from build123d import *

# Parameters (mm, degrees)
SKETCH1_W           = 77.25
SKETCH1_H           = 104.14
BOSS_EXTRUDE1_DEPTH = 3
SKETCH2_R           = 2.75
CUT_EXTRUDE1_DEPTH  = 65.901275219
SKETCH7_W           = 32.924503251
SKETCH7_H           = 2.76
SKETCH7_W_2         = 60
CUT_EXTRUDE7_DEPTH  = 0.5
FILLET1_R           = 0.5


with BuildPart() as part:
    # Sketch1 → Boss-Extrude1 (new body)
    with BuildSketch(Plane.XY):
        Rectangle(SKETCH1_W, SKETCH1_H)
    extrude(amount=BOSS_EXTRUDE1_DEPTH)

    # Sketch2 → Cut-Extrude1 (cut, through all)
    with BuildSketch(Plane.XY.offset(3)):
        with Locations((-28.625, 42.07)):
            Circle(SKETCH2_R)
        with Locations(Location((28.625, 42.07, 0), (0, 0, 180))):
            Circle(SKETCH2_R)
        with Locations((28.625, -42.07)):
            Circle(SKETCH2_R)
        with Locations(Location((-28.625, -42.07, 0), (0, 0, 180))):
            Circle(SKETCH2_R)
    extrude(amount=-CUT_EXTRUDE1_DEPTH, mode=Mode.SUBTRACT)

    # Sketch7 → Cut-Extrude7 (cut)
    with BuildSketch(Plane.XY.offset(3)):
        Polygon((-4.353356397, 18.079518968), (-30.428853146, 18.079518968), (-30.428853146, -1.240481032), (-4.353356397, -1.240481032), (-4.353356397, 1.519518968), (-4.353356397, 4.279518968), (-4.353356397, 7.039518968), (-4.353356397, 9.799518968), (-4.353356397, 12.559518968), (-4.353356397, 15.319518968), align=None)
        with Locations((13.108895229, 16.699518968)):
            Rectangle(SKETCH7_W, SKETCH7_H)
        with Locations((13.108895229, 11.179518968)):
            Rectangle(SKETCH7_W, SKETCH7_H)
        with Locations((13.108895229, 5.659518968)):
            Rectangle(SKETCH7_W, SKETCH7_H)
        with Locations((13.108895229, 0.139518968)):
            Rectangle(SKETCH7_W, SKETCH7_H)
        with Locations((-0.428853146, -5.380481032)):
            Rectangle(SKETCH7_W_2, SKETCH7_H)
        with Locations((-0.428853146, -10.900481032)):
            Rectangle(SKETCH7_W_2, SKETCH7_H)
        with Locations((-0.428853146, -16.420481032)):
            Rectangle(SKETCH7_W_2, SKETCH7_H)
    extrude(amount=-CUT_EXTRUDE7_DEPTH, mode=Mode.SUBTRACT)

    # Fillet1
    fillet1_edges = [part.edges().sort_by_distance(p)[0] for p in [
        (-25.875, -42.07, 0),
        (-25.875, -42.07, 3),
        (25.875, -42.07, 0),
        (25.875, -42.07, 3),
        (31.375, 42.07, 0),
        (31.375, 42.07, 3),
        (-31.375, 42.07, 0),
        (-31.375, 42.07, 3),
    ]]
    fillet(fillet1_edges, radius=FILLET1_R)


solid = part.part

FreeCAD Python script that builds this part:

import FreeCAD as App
import Part
import Sketcher

V = App.Vector
Q = App.Units.Quantity


def edges_at(feature, points):
    """Names of the edges that pass closest to the given points."""
    edges = feature.Shape.Edges
    near = lambda p: min(range(len(edges)), key=lambda i: edges[i].distToShape(Part.Vertex(*p))[0])
    return sorted({f"Edge{near(p) + 1}" for p in points})

doc = App.newDocument("Part")
params = doc.addObject("Spreadsheet::Sheet", "Params")
for row, (alias, value) in enumerate([
    ("sketch1_width", "77.25 mm"),
    ("sketch1_height", "104.14 mm"),
    ("pad1_length", "3 mm"),
    ("sketch2_diameter", "5.5 mm"),
    ("sketch3_width", "60 mm"),
    ("sketch3_height", "19.32 mm"),
    ("sketch3_height2", "2.76 mm"),
    ("pocket2_length", "0.5 mm"),
    ("fillet_radius", "0.5 mm"),
], start=1):
    params.set(f"A{row}", alias)
    params.set(f"B{row}", "=" + value)
    params.setAlias(f"B{row}", alias)

body = doc.addObject("PartDesign::Body", "Body")

sketch1 = body.newObject("Sketcher::SketchObject", "Sketch")
sketch1.AttachmentSupport = (doc.getObject("XY_Plane"), [""])
sketch1.MapMode = "FlatFace"
sketch1.addGeometry(Part.LineSegment(V(-39, 52, 0), V(-39, -52, 0)), False)
sketch1.addGeometry(Part.LineSegment(V(-39, -52, 0), V(39, -52, 0)), False)
sketch1.addGeometry(Part.LineSegment(V(39, -52, 0), V(39, 52, 0)), False)
sketch1.addGeometry(Part.LineSegment(V(39, 52, 0), V(-39, 52, 0)), False)
sketch1.addConstraint(Sketcher.Constraint("Coincident", 0, 2, 1, 1))
sketch1.addConstraint(Sketcher.Constraint("Coincident", 1, 2, 2, 1))
sketch1.addConstraint(Sketcher.Constraint("Coincident", 2, 2, 3, 1))
sketch1.addConstraint(Sketcher.Constraint("Coincident", 3, 2, 0, 1))
sketch1.addConstraint(Sketcher.Constraint("Vertical", 0))
sketch1.addConstraint(Sketcher.Constraint("Horizontal", 1))
sketch1.addConstraint(Sketcher.Constraint("Vertical", 2))
sketch1.addConstraint(Sketcher.Constraint("Horizontal", 3))
sketch1.addConstraint(Sketcher.Constraint("Symmetric", 0, 2, 2, 2, -1, 1))
sketch1.addConstraint(Sketcher.Constraint("DistanceX", 1, 1, 1, 2, Q("77.25 mm")))
sketch1.addConstraint(Sketcher.Constraint("DistanceY", 0, 2, 0, 1, Q("104.14 mm")))
sketch1.setExpression("Constraints[9]", "Params.sketch1_width")
sketch1.setExpression("Constraints[10]", "Params.sketch1_height")
pad1 = body.newObject("PartDesign::Pad", "Pad")
pad1.Profile = sketch1
pad1.setExpression("Length", "Params.pad1_length")

sketch2 = body.newObject("Sketcher::SketchObject", "Sketch001")
sketch2.AttachmentSupport = (doc.getObject("XY_Plane"), [""])
sketch2.MapMode = "FlatFace"
sketch2.AttachmentOffset = App.Placement(V(0, 0, 3), App.Rotation())
sketch2.addGeometry(Part.Circle(V(-28.6, 42.1, 0), V(0, 0, 1), 2.8), False)
sketch2.addGeometry(Part.Circle(V(28.6, 42.1, 0), V(0, 0, 1), 2.8), False)
sketch2.addGeometry(Part.Circle(V(28.6, -42.1, 0), V(0, 0, 1), 2.8), False)
sketch2.addGeometry(Part.Circle(V(-28.6, -42.1, 0), V(0, 0, 1), 2.8), False)
sketch2.addConstraint(Sketcher.Constraint("Equal", 0, 1))
sketch2.addConstraint(Sketcher.Constraint("Equal", 1, 2))
sketch2.addConstraint(Sketcher.Constraint("Equal", 2, 3))
sketch2.addConstraint(Sketcher.Constraint("Symmetric", 0, 3, 2, 3, -1, 1))
sketch2.addConstraint(Sketcher.Constraint("Symmetric", 1, 3, 3, 3, -1, 1))
sketch2.addConstraint(Sketcher.Constraint("Symmetric", 0, 3, 1, 3, -2))
sketch2.addConstraint(Sketcher.Constraint("Diameter", 0, Q("5.5 mm")))
sketch2.addConstraint(Sketcher.Constraint("DistanceY", -1, 1, 0, 3, Q("42.07 mm")))
sketch2.addConstraint(Sketcher.Constraint("DistanceX", 0, 3, 1, 3, Q("57.25 mm")))
sketch2.setExpression("Constraints[6]", "Params.sketch2_diameter")
pocket1 = body.newObject("PartDesign::Pocket", "Pocket")
pocket1.Profile = sketch2
pocket1.Type = "ThroughAll"

sketch3 = body.newObject("Sketcher::SketchObject", "Sketch002")
sketch3.AttachmentSupport = (doc.getObject("XY_Plane"), [""])
sketch3.MapMode = "FlatFace"
sketch3.AttachmentOffset = App.Placement(V(0, 0, 3), App.Rotation())
sketch3.addGeometry(Part.LineSegment(V(-4.4, 18.1, 0), V(-30.4, 18.1, 0)), False)
sketch3.addGeometry(Part.LineSegment(V(-30.4, 18.1, 0), V(-30.4, -1.2, 0)), False)
sketch3.addGeometry(Part.LineSegment(V(-30.4, -1.2, 0), V(-4.4, -1.2, 0)), False)
sketch3.addGeometry(Part.LineSegment(V(-4.4, -1.2, 0), V(-4.4, 18.1, 0)), False)
sketch3.addGeometry(Part.LineSegment(V(-3.4, 18.1, 0), V(-3.4, 15.3, 0)), False)
sketch3.addGeometry(Part.LineSegment(V(-3.4, 15.3, 0), V(29.6, 15.3, 0)), False)
sketch3.addGeometry(Part.LineSegment(V(29.6, 15.3, 0), V(29.6, 18.1, 0)), False)
sketch3.addGeometry(Part.LineSegment(V(29.6, 18.1, 0), V(-3.4, 18.1, 0)), False)
sketch3.addGeometry(Part.LineSegment(V(-3.4, 12.6, 0), V(-3.4, 9.8, 0)), False)
sketch3.addGeometry(Part.LineSegment(V(-3.4, 9.8, 0), V(29.6, 9.8, 0)), False)
sketch3.addGeometry(Part.LineSegment(V(29.6, 9.8, 0), V(29.6, 12.6, 0)), False)
sketch3.addGeometry(Part.LineSegment(V(29.6, 12.6, 0), V(-3.4, 12.6, 0)), False)
sketch3.addGeometry(Part.LineSegment(V(-3.4, 7, 0), V(-3.4, 4.3, 0)), False)
sketch3.addGeometry(Part.LineSegment(V(-3.4, 4.3, 0), V(29.6, 4.3, 0)), False)
sketch3.addGeometry(Part.LineSegment(V(29.6, 4.3, 0), V(29.6, 7, 0)), False)
sketch3.addGeometry(Part.LineSegment(V(29.6, 7, 0), V(-3.4, 7, 0)), False)
sketch3.addGeometry(Part.LineSegment(V(-3.4, 1.5, 0), V(-3.4, -1.2, 0)), False)
sketch3.addGeometry(Part.LineSegment(V(-3.4, -1.2, 0), V(29.6, -1.2, 0)), False)
sketch3.addGeometry(Part.LineSegment(V(29.6, -1.2, 0), V(29.6, 1.5, 0)), False)
sketch3.addGeometry(Part.LineSegment(V(29.6, 1.5, 0), V(-3.4, 1.5, 0)), False)
sketch3.addGeometry(Part.LineSegment(V(-30.4, -4, 0), V(-30.4, -6.8, 0)), False)
sketch3.addGeometry(Part.LineSegment(V(-30.4, -6.8, 0), V(29.6, -6.8, 0)), False)
sketch3.addGeometry(Part.LineSegment(V(29.6, -6.8, 0), V(29.6, -4, 0)), False)
sketch3.addGeometry(Part.LineSegment(V(29.6, -4, 0), V(-30.4, -4, 0)), False)
sketch3.addGeometry(Part.LineSegment(V(-30.4, -9.5, 0), V(-30.4, -12.3, 0)), False)
sketch3.addGeometry(Part.LineSegment(V(-30.4, -12.3, 0), V(29.6, -12.3, 0)), False)
sketch3.addGeometry(Part.LineSegment(V(29.6, -12.3, 0), V(29.6, -9.5, 0)), False)
sketch3.addGeometry(Part.LineSegment(V(29.6, -9.5, 0), V(-30.4, -9.5, 0)), False)
sketch3.addGeometry(Part.LineSegment(V(-30.4, -15, 0), V(-30.4, -17.8, 0)), False)
sketch3.addGeometry(Part.LineSegment(V(-30.4, -17.8, 0), V(29.6, -17.8, 0)), False)
sketch3.addGeometry(Part.LineSegment(V(29.6, -17.8, 0), V(29.6, -15, 0)), False)
sketch3.addGeometry(Part.LineSegment(V(29.6, -15, 0), V(-30.4, -15, 0)), False)
sketch3.addConstraint(Sketcher.Constraint("Coincident", 0, 2, 1, 1))
sketch3.addConstraint(Sketcher.Constraint("Coincident", 1, 2, 2, 1))
sketch3.addConstraint(Sketcher.Constraint("Coincident", 2, 2, 3, 1))
sketch3.addConstraint(Sketcher.Constraint("Coincident", 3, 2, 0, 1))
sketch3.addConstraint(Sketcher.Constraint("Coincident", 4, 2, 5, 1))
sketch3.addConstraint(Sketcher.Constraint("Coincident", 5, 2, 6, 1))
sketch3.addConstraint(Sketcher.Constraint("Coincident", 6, 2, 7, 1))
sketch3.addConstraint(Sketcher.Constraint("Coincident", 7, 2, 4, 1))
sketch3.addConstraint(Sketcher.Constraint("Coincident", 8, 2, 9, 1))
sketch3.addConstraint(Sketcher.Constraint("Coincident", 9, 2, 10, 1))
sketch3.addConstraint(Sketcher.Constraint("Coincident", 10, 2, 11, 1))
sketch3.addConstraint(Sketcher.Constraint("Coincident", 11, 2, 8, 1))
sketch3.addConstraint(Sketcher.Constraint("Coincident", 12, 2, 13, 1))
sketch3.addConstraint(Sketcher.Constraint("Coincident", 13, 2, 14, 1))
sketch3.addConstraint(Sketcher.Constraint("Coincident", 14, 2, 15, 1))
sketch3.addConstraint(Sketcher.Constraint("Coincident", 15, 2, 12, 1))
sketch3.addConstraint(Sketcher.Constraint("Coincident", 16, 2, 17, 1))
sketch3.addConstraint(Sketcher.Constraint("Coincident", 17, 2, 18, 1))
sketch3.addConstraint(Sketcher.Constraint("Coincident", 18, 2, 19, 1))
sketch3.addConstraint(Sketcher.Constraint("Coincident", 19, 2, 16, 1))
sketch3.addConstraint(Sketcher.Constraint("Coincident", 20, 2, 21, 1))
sketch3.addConstraint(Sketcher.Constraint("Coincident", 21, 2, 22, 1))
sketch3.addConstraint(Sketcher.Constraint("Coincident", 22, 2, 23, 1))
sketch3.addConstraint(Sketcher.Constraint("Coincident", 23, 2, 20, 1))
sketch3.addConstraint(Sketcher.Constraint("Coincident", 24, 2, 25, 1))
sketch3.addConstraint(Sketcher.Constraint("Coincident", 25, 2, 26, 1))
sketch3.addConstraint(Sketcher.Constraint("Coincident", 26, 2, 27, 1))
sketch3.addConstraint(Sketcher.Constraint("Coincident", 27, 2, 24, 1))
sketch3.addConstraint(Sketcher.Constraint("Coincident", 28, 2, 29, 1))
sketch3.addConstraint(Sketcher.Constraint("Coincident", 29, 2, 30, 1))
sketch3.addConstraint(Sketcher.Constraint("Coincident", 30, 2, 31, 1))
sketch3.addConstraint(Sketcher.Constraint("Coincident", 31, 2, 28, 1))
sketch3.addConstraint(Sketcher.Constraint("Horizontal", 0))
sketch3.addConstraint(Sketcher.Constraint("Vertical", 1))
sketch3.addConstraint(Sketcher.Constraint("Horizontal", 2))
sketch3.addConstraint(Sketcher.Constraint("Vertical", 3))
sketch3.addConstraint(Sketcher.Constraint("Vertical", 4))
sketch3.addConstraint(Sketcher.Constraint("Horizontal", 5))
sketch3.addConstraint(Sketcher.Constraint("Vertical", 6))
sketch3.addConstraint(Sketcher.Constraint("Horizontal", 7))
sketch3.addConstraint(Sketcher.Constraint("Vertical", 8))
sketch3.addConstraint(Sketcher.Constraint("Horizontal", 9))
sketch3.addConstraint(Sketcher.Constraint("Vertical", 10))
sketch3.addConstraint(Sketcher.Constraint("Horizontal", 11))
sketch3.addConstraint(Sketcher.Constraint("Vertical", 12))
sketch3.addConstraint(Sketcher.Constraint("Horizontal", 13))
sketch3.addConstraint(Sketcher.Constraint("Vertical", 14))
sketch3.addConstraint(Sketcher.Constraint("Horizontal", 15))
sketch3.addConstraint(Sketcher.Constraint("Vertical", 16))
sketch3.addConstraint(Sketcher.Constraint("Horizontal", 17))
sketch3.addConstraint(Sketcher.Constraint("Vertical", 18))
sketch3.addConstraint(Sketcher.Constraint("Horizontal", 19))
sketch3.addConstraint(Sketcher.Constraint("Vertical", 20))
sketch3.addConstraint(Sketcher.Constraint("Horizontal", 21))
sketch3.addConstraint(Sketcher.Constraint("Vertical", 22))
sketch3.addConstraint(Sketcher.Constraint("Horizontal", 23))
sketch3.addConstraint(Sketcher.Constraint("Vertical", 24))
sketch3.addConstraint(Sketcher.Constraint("Horizontal", 25))
sketch3.addConstraint(Sketcher.Constraint("Vertical", 26))
sketch3.addConstraint(Sketcher.Constraint("Horizontal", 27))
sketch3.addConstraint(Sketcher.Constraint("Vertical", 28))
sketch3.addConstraint(Sketcher.Constraint("Horizontal", 29))
sketch3.addConstraint(Sketcher.Constraint("Vertical", 30))
sketch3.addConstraint(Sketcher.Constraint("Horizontal", 31))
sketch3.addConstraint(Sketcher.Constraint("Horizontal", 3, 2, 6, 2))
sketch3.addConstraint(Sketcher.Constraint("Horizontal", 2, 2, 16, 2))
sketch3.addConstraint(Sketcher.Constraint("Vertical", 7, 2, 8, 2))
sketch3.addConstraint(Sketcher.Constraint("Vertical", 6, 2, 9, 2))
sketch3.addConstraint(Sketcher.Constraint("Vertical", 11, 2, 12, 2))
sketch3.addConstraint(Sketcher.Constraint("Vertical", 10, 2, 13, 2))
sketch3.addConstraint(Sketcher.Constraint("Vertical", 15, 2, 16, 2))
sketch3.addConstraint(Sketcher.Constraint("Vertical", 14, 2, 17, 2))
sketch3.addConstraint(Sketcher.Constraint("Vertical", 1, 2, 20, 2))
sketch3.addConstraint(Sketcher.Constraint("Vertical", 18, 2, 21, 2))
sketch3.addConstraint(Sketcher.Constraint("Vertical", 23, 2, 24, 2))
sketch3.addConstraint(Sketcher.Constraint("Vertical", 22, 2, 25, 2))
sketch3.addConstraint(Sketcher.Constraint("Vertical", 27, 2, 28, 2))
sketch3.addConstraint(Sketcher.Constraint("Vertical", 26, 2, 29, 2))
sketch3.addConstraint(Sketcher.Constraint("Equal", 6, 8))
sketch3.addConstraint(Sketcher.Constraint("Equal", 10, 12))
sketch3.addConstraint(Sketcher.Constraint("Equal", 14, 16))
sketch3.addConstraint(Sketcher.Constraint("Equal", 18, 20))
sketch3.addConstraint(Sketcher.Constraint("Equal", 22, 24))
sketch3.addConstraint(Sketcher.Constraint("Equal", 26, 28))
sketch3.addConstraint(Sketcher.Constraint("DistanceX", 21, 1, 21, 2, Q("60 mm")))
sketch3.addConstraint(Sketcher.Constraint("DistanceX", 3, 2, 4, 2, Q("1 mm")))
sketch3.addConstraint(Sketcher.Constraint("DistanceY", 1, 2, 1, 1, Q("19.32 mm")))
sketch3.addConstraint(Sketcher.Constraint("DistanceY", 4, 2, 4, 1, Q("2.76 mm")))
sketch3.addConstraint(Sketcher.Constraint("DistanceY", 2, 2, 11, 2, Q("13.8 mm")))
sketch3.addConstraint(Sketcher.Constraint("DistanceY", 12, 2, 7, 2, Q("13.8 mm")))
sketch3.addConstraint(Sketcher.Constraint("DistanceY", 21, 2, 14, 2, Q("13.8 mm")))
sketch3.addConstraint(Sketcher.Constraint("DistanceY", 25, 2, 18, 2, Q("13.8 mm")))
sketch3.addConstraint(Sketcher.Constraint("DistanceY", 28, 2, 23, 2, Q("13.8 mm")))
sketch3.addConstraint(Sketcher.Constraint("DistanceX", 0, 2, 0, 1, Q("26.075497 mm")))
sketch3.addConstraint(Sketcher.Constraint("DistanceY", -1, 1, 0, 2, Q("18.079519 mm")))
sketch3.addConstraint(Sketcher.Constraint("DistanceX", 0, 2, -1, 1, Q("30.428853 mm")))
sketch3.setExpression("Constraints[84]", "Params.sketch3_width")
sketch3.setExpression("Constraints[86]", "Params.sketch3_height")
sketch3.setExpression("Constraints[87]", "Params.sketch3_height2")
pocket2 = body.newObject("PartDesign::Pocket", "Pocket001")
pocket2.Profile = sketch3
pocket2.setExpression("Length", "Params.pocket2_length")
doc.recompute()

fillet = body.newObject("PartDesign::Fillet", "Fillet")
fillet.Base = (pocket2, edges_at(pocket2, [
    (-25.875, -42.07, 0),
    (-25.875, -42.07, 3),
    (25.875, -42.07, 0),
    (25.875, -42.07, 3),
    (31.375, 42.07, 0),
    (31.375, 42.07, 3),
    (-31.375, 42.07, 0),
    (-31.375, 42.07, 3),
]))
fillet.setExpression("Radius", "Params.fillet_radius")

doc.recompute()
